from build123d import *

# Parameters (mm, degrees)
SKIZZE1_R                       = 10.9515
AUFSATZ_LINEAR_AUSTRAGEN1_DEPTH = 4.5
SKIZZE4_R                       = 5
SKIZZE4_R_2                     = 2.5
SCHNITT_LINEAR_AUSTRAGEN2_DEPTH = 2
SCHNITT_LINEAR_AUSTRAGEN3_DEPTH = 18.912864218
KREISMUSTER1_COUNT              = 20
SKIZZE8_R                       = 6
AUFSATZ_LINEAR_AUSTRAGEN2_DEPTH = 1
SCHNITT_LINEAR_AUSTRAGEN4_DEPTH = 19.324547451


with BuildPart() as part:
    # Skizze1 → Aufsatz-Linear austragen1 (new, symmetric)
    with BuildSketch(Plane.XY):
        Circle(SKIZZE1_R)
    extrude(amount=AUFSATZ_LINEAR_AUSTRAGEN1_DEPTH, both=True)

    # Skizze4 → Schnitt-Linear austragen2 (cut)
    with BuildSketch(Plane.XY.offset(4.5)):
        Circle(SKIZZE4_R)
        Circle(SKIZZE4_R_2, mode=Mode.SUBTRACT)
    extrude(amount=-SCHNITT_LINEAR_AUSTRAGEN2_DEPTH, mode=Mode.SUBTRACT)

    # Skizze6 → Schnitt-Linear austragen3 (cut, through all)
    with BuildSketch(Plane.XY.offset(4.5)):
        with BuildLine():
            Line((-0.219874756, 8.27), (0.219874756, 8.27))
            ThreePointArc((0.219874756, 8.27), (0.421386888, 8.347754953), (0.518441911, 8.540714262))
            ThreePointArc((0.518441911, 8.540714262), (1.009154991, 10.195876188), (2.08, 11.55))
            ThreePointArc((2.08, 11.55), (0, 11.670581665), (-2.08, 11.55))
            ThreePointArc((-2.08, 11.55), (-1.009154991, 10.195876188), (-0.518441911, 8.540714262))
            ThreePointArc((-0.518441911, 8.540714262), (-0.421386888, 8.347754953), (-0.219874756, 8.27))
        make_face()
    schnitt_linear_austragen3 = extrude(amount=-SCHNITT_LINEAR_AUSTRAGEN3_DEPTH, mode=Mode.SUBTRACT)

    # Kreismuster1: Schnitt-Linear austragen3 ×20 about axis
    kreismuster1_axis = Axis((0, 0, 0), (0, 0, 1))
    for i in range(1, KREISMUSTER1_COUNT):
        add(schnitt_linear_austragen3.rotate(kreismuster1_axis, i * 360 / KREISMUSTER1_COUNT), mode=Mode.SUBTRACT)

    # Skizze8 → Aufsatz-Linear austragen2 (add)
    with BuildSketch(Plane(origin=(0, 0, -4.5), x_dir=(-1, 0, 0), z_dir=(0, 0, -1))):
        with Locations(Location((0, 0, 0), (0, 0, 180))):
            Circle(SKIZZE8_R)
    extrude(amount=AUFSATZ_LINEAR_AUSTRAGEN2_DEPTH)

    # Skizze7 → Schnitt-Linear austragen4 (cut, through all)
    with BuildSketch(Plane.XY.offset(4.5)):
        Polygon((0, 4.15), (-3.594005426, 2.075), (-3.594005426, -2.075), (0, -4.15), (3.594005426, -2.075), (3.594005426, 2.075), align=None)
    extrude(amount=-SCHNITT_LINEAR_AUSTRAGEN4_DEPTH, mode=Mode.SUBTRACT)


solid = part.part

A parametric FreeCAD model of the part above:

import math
import FreeCAD as App
import Part
import Sketcher
from FreeCAD import Vector
Q = App.Units.Quantity

doc = App.newDocument("Part")
body = doc.addObject("PartDesign::Body", "Body")

# Sketch on XY plane
sketch1 = doc.addObject("Sketcher::SketchObject", "Sketch")
body.addObject(sketch1)
sketch1.AttachmentSupport = (doc.XY_Plane, [""])
sketch1.MapMode = "FlatFace"
sketch1.addGeometry(Part.Circle(Vector(0, 0, 0), Vector(0, 0, 1), 11), False)
sketch1.addConstraint(Sketcher.Constraint("Coincident", 0, 3, -1, 1))
sketch1.addConstraint(Sketcher.Constraint("Diameter", 0, 21.903))
pad1 = doc.addObject("PartDesign::Pad", "Pad")
body.addObject(pad1)
pad1.Profile = sketch1
pad1.Length = 9
pad1.Midplane = True

# Sketch on XY plane
sketch2 = doc.addObject("Sketcher::SketchObject", "Sketch001")
body.addObject(sketch2)
sketch2.AttachmentSupport = (doc.XY_Plane, [""])
sketch2.MapMode = "FlatFace"
sketch2.AttachmentOffset = App.Placement(Vector(0, 0, 4.5), App.Rotation())
sketch2.addGeometry(Part.Circle(Vector(0, 0, 0), Vector(0, 0, 1), 5), False)
sketch2.addGeometry(Part.Circle(Vector(0, 0, 0), Vector(0, 0, 1), 2.5), False)
sketch2.addConstraint(Sketcher.Constraint("Coincident", 0, 3, -1, 1))
sketch2.addConstraint(Sketcher.Constraint("Coincident", 1, 3, -1, 1))
sketch2.addConstraint(Sketcher.Constraint("Diameter", 0, 10.0))
sketch2.addConstraint(Sketcher.Constraint("Diameter", 1, 5.0))
pocket1 = doc.addObject("PartDesign::Pocket", "Pocket")
body.addObject(pocket1)
pocket1.Profile = sketch2
pocket1.Length = 2

# Sketch on XY plane
sketch3 = doc.addObject("Sketcher::SketchObject", "Sketch002")
body.addObject(sketch3)
sketch3.AttachmentSupport = (doc.XY_Plane, [""])
sketch3.MapMode = "FlatFace"
sketch3.AttachmentOffset = App.Placement(Vector(0, 0, 4.5), App.Rotation())
sketch3.addGeometry(Part.LineSegment(Vector(-0.22, 8.27, 0), Vector(0.22, 8.27, 0)), False)
sketch3.addGeometry(Part.ArcOfCircle(Part.Circle(Vector(0.22, 8.57, 0), Vector(0, 0, 1), 0.3), math.radians(-90), math.radians(-6)), False)
sketch3.addGeometry(Part.ArcOfCircle(Part.Circle(Vector(5.06, 8.1, 0), Vector(0, 0, 1), 4.56), math.radians(131), math.radians(174)), False)
sketch3.addGeometry(Part.ArcOfCircle(Part.Circle(Vector(0, -6.33, 0), Vector(0, 0, 1), 18), math.radians(83.36), math.radians(96.64)), False)
sketch3.addGeometry(Part.ArcOfCircle(Part.Circle(Vector(-5.06, 8.1, 0), Vector(0, 0, 1), 4.56), math.radians(6), math.radians(49)), False)
sketch3.addGeometry(Part.ArcOfCircle(Part.Circle(Vector(-0.22, 8.57, 0), Vector(0, 0, 1), 0.3), math.radians(-174), math.radians(-90)), False)
sketch3.addConstraint(Sketcher.Constraint("Tangent", 0, 2, 1, 1))
sketch3.addConstraint(Sketcher.Constraint("Tangent", 1, 2, 2, 2))
sketch3.addConstraint(Sketcher.Constraint("Coincident", 2, 1, 3, 1))
sketch3.addConstraint(Sketcher.Constraint("Coincident", 3, 2, 4, 2))
sketch3.addConstraint(Sketcher.Constraint("Tangent", 4, 1, 5, 1))
sketch3.addConstraint(Sketcher.Constraint("Tangent", 5, 2, 0, 1))
sketch3.addConstraint(Sketcher.Constraint("Horizontal", 0))
sketch3.addConstraint(Sketcher.Constraint("Equal", 2, 4))
sketch3.addConstraint(Sketcher.Constraint("Equal", 1, 5))
sketch3.addConstraint(Sketcher.Constraint("Symmetric", 2, 3, 4, 3, -2))
sketch3.addConstraint(Sketcher.Constraint("PointOnObject", 3, 3, -2))
sketch3.addConstraint(Sketcher.Constraint("Radius", 3, 18.0))
sketch3.addConstraint(Sketcher.Constraint("Radius", 1, 0.3))
sketch3.addConstraint(Sketcher.Constraint("Radius", 2, 4.56))
sketch3.addConstraint(Sketcher.Constraint("DistanceY", -1, 1, 1, 3, 8.57))
sketch3.addConstraint(Sketcher.Constraint("DistanceX", -1, 1, 2, 1, 2.08))
sketch3.addConstraint(Sketcher.Constraint("DistanceY", -1, 1, 2, 1, 11.55))
sketch3.addConstraint(Sketcher.Constraint("DistanceX", 0, 1, 0, 2, 0.43975))
pocket2 = doc.addObject("PartDesign::Pocket", "Pocket001")
body.addObject(pocket2)
pocket2.Profile = sketch3
pocket2.Type = "ThroughAll"
doc.recompute()

polarpattern = doc.addObject("PartDesign::PolarPattern", "PolarPattern")
body.addObject(polarpattern)
polarpattern.Originals = [pocket2]
polarpattern.Axis = (doc.Z_Axis, [""])
polarpattern.Angle = 360
polarpattern.Occurrences = 20
body.Tip = polarpattern

# Sketch on XY plane
sketch4 = doc.addObject("Sketcher::SketchObject", "Sketch003")
body.addObject(sketch4)
sketch4.AttachmentSupport = (doc.XY_Plane, [""])
sketch4.MapMode = "FlatFace"
sketch4.AttachmentOffset = App.Placement(Vector(0, 0, -4.5), App.Rotation())
sketch4.addGeometry(Part.Circle(Vector(0, 0, 0), Vector(0, 0, 1), 6), False)
sketch4.addConstraint(Sketcher.Constraint("Coincident", 0, 3, -1, 1))
sketch4.addConstraint(Sketcher.Constraint("Diameter", 0, 12.0))
pad2 = doc.addObject("PartDesign::Pad", "Pad001")
body.addObject(pad2)
pad2.Profile = sketch4
pad2.Length = 1
pad2.Reversed = True

# Sketch on XY plane
sketch5 = doc.addObject("Sketcher::SketchObject", "Sketch004")
body.addObject(sketch5)
sketch5.AttachmentSupport = (doc.XY_Plane, [""])
sketch5.MapMode = "FlatFace"
sketch5.AttachmentOffset = App.Placement(Vector(0, 0, 4.5), App.Rotation())
sketch5.addGeometry(Part.LineSegment(Vector(0, 4.2, 0), Vector(-3.6, 2.1, 0)), False)
sketch5.addGeometry(Part.LineSegment(Vector(-3.6, 2.1, 0), Vector(-3.6, -2.1, 0)), False)
sketch5.addGeometry(Part.LineSegment(Vector(-3.6, -2.1, 0), Vector(0, -4.2, 0)), False)
sketch5.addGeometry(Part.LineSegment(Vector(0, -4.2, 0), Vector(3.6, -2.1, 0)), False)
sketch5.addGeometry(Part.LineSegment(Vector(3.6, -2.1, 0), Vector(3.6, 2.1, 0)), False)
sketch5.addGeometry(Part.LineSegment(Vector(3.6, 2.1, 0), Vector(0, 4.2, 0)), False)
sketch5.addConstraint(Sketcher.Constraint("Coincident", 0, 2, 1, 1))
sketch5.addConstraint(Sketcher.Constraint("Coincident", 1, 2, 2, 1))
sketch5.addConstraint(Sketcher.Constraint("Coincident", 2, 2, 3, 1))
sketch5.addConstraint(Sketcher.Constraint("Coincident", 3, 2, 4, 1))
sketch5.addConstraint(Sketcher.Constraint("Coincident", 4, 2, 5, 1))
sketch5.addConstraint(Sketcher.Constraint("Coincident", 5, 2, 0, 1))
sketch5.addConstraint(Sketcher.Constraint("Vertical", 1))
sketch5.addConstraint(Sketcher.Constraint("Vertical", 4))
sketch5.addConstraint(Sketcher.Constraint("Symmetric", 0, 2, 3, 2, -1, 1))
sketch5.addConstraint(Sketcher.Constraint("Symmetric", 2, 2, 5, 2, -1, 1))
sketch5.addConstraint(Sketcher.Constraint("PointOnObject", 2, 2, -2))
sketch5.addConstraint(Sketcher.Constraint("Parallel", 2, 5))
sketch5.addConstraint(Sketcher.Constraint("Horizontal", 1, 2, 3, 2))
sketch5.addConstraint(Sketcher.Constraint("Angle", 0, Q("-150 deg")))
sketch5.addConstraint(Sketcher.Constraint("DistanceY", 1, 2, 1, 1, 4.15))
sketch5.addConstraint(Sketcher.Constraint("DistanceY", 2, 2, 5, 2, 8.3))
pocket3 = doc.addObject("PartDesign::Pocket", "Pocket002")
body.addObject(pocket3)
pocket3.Profile = sketch5
pocket3.Type = "ThroughAll"

doc.recompute()
